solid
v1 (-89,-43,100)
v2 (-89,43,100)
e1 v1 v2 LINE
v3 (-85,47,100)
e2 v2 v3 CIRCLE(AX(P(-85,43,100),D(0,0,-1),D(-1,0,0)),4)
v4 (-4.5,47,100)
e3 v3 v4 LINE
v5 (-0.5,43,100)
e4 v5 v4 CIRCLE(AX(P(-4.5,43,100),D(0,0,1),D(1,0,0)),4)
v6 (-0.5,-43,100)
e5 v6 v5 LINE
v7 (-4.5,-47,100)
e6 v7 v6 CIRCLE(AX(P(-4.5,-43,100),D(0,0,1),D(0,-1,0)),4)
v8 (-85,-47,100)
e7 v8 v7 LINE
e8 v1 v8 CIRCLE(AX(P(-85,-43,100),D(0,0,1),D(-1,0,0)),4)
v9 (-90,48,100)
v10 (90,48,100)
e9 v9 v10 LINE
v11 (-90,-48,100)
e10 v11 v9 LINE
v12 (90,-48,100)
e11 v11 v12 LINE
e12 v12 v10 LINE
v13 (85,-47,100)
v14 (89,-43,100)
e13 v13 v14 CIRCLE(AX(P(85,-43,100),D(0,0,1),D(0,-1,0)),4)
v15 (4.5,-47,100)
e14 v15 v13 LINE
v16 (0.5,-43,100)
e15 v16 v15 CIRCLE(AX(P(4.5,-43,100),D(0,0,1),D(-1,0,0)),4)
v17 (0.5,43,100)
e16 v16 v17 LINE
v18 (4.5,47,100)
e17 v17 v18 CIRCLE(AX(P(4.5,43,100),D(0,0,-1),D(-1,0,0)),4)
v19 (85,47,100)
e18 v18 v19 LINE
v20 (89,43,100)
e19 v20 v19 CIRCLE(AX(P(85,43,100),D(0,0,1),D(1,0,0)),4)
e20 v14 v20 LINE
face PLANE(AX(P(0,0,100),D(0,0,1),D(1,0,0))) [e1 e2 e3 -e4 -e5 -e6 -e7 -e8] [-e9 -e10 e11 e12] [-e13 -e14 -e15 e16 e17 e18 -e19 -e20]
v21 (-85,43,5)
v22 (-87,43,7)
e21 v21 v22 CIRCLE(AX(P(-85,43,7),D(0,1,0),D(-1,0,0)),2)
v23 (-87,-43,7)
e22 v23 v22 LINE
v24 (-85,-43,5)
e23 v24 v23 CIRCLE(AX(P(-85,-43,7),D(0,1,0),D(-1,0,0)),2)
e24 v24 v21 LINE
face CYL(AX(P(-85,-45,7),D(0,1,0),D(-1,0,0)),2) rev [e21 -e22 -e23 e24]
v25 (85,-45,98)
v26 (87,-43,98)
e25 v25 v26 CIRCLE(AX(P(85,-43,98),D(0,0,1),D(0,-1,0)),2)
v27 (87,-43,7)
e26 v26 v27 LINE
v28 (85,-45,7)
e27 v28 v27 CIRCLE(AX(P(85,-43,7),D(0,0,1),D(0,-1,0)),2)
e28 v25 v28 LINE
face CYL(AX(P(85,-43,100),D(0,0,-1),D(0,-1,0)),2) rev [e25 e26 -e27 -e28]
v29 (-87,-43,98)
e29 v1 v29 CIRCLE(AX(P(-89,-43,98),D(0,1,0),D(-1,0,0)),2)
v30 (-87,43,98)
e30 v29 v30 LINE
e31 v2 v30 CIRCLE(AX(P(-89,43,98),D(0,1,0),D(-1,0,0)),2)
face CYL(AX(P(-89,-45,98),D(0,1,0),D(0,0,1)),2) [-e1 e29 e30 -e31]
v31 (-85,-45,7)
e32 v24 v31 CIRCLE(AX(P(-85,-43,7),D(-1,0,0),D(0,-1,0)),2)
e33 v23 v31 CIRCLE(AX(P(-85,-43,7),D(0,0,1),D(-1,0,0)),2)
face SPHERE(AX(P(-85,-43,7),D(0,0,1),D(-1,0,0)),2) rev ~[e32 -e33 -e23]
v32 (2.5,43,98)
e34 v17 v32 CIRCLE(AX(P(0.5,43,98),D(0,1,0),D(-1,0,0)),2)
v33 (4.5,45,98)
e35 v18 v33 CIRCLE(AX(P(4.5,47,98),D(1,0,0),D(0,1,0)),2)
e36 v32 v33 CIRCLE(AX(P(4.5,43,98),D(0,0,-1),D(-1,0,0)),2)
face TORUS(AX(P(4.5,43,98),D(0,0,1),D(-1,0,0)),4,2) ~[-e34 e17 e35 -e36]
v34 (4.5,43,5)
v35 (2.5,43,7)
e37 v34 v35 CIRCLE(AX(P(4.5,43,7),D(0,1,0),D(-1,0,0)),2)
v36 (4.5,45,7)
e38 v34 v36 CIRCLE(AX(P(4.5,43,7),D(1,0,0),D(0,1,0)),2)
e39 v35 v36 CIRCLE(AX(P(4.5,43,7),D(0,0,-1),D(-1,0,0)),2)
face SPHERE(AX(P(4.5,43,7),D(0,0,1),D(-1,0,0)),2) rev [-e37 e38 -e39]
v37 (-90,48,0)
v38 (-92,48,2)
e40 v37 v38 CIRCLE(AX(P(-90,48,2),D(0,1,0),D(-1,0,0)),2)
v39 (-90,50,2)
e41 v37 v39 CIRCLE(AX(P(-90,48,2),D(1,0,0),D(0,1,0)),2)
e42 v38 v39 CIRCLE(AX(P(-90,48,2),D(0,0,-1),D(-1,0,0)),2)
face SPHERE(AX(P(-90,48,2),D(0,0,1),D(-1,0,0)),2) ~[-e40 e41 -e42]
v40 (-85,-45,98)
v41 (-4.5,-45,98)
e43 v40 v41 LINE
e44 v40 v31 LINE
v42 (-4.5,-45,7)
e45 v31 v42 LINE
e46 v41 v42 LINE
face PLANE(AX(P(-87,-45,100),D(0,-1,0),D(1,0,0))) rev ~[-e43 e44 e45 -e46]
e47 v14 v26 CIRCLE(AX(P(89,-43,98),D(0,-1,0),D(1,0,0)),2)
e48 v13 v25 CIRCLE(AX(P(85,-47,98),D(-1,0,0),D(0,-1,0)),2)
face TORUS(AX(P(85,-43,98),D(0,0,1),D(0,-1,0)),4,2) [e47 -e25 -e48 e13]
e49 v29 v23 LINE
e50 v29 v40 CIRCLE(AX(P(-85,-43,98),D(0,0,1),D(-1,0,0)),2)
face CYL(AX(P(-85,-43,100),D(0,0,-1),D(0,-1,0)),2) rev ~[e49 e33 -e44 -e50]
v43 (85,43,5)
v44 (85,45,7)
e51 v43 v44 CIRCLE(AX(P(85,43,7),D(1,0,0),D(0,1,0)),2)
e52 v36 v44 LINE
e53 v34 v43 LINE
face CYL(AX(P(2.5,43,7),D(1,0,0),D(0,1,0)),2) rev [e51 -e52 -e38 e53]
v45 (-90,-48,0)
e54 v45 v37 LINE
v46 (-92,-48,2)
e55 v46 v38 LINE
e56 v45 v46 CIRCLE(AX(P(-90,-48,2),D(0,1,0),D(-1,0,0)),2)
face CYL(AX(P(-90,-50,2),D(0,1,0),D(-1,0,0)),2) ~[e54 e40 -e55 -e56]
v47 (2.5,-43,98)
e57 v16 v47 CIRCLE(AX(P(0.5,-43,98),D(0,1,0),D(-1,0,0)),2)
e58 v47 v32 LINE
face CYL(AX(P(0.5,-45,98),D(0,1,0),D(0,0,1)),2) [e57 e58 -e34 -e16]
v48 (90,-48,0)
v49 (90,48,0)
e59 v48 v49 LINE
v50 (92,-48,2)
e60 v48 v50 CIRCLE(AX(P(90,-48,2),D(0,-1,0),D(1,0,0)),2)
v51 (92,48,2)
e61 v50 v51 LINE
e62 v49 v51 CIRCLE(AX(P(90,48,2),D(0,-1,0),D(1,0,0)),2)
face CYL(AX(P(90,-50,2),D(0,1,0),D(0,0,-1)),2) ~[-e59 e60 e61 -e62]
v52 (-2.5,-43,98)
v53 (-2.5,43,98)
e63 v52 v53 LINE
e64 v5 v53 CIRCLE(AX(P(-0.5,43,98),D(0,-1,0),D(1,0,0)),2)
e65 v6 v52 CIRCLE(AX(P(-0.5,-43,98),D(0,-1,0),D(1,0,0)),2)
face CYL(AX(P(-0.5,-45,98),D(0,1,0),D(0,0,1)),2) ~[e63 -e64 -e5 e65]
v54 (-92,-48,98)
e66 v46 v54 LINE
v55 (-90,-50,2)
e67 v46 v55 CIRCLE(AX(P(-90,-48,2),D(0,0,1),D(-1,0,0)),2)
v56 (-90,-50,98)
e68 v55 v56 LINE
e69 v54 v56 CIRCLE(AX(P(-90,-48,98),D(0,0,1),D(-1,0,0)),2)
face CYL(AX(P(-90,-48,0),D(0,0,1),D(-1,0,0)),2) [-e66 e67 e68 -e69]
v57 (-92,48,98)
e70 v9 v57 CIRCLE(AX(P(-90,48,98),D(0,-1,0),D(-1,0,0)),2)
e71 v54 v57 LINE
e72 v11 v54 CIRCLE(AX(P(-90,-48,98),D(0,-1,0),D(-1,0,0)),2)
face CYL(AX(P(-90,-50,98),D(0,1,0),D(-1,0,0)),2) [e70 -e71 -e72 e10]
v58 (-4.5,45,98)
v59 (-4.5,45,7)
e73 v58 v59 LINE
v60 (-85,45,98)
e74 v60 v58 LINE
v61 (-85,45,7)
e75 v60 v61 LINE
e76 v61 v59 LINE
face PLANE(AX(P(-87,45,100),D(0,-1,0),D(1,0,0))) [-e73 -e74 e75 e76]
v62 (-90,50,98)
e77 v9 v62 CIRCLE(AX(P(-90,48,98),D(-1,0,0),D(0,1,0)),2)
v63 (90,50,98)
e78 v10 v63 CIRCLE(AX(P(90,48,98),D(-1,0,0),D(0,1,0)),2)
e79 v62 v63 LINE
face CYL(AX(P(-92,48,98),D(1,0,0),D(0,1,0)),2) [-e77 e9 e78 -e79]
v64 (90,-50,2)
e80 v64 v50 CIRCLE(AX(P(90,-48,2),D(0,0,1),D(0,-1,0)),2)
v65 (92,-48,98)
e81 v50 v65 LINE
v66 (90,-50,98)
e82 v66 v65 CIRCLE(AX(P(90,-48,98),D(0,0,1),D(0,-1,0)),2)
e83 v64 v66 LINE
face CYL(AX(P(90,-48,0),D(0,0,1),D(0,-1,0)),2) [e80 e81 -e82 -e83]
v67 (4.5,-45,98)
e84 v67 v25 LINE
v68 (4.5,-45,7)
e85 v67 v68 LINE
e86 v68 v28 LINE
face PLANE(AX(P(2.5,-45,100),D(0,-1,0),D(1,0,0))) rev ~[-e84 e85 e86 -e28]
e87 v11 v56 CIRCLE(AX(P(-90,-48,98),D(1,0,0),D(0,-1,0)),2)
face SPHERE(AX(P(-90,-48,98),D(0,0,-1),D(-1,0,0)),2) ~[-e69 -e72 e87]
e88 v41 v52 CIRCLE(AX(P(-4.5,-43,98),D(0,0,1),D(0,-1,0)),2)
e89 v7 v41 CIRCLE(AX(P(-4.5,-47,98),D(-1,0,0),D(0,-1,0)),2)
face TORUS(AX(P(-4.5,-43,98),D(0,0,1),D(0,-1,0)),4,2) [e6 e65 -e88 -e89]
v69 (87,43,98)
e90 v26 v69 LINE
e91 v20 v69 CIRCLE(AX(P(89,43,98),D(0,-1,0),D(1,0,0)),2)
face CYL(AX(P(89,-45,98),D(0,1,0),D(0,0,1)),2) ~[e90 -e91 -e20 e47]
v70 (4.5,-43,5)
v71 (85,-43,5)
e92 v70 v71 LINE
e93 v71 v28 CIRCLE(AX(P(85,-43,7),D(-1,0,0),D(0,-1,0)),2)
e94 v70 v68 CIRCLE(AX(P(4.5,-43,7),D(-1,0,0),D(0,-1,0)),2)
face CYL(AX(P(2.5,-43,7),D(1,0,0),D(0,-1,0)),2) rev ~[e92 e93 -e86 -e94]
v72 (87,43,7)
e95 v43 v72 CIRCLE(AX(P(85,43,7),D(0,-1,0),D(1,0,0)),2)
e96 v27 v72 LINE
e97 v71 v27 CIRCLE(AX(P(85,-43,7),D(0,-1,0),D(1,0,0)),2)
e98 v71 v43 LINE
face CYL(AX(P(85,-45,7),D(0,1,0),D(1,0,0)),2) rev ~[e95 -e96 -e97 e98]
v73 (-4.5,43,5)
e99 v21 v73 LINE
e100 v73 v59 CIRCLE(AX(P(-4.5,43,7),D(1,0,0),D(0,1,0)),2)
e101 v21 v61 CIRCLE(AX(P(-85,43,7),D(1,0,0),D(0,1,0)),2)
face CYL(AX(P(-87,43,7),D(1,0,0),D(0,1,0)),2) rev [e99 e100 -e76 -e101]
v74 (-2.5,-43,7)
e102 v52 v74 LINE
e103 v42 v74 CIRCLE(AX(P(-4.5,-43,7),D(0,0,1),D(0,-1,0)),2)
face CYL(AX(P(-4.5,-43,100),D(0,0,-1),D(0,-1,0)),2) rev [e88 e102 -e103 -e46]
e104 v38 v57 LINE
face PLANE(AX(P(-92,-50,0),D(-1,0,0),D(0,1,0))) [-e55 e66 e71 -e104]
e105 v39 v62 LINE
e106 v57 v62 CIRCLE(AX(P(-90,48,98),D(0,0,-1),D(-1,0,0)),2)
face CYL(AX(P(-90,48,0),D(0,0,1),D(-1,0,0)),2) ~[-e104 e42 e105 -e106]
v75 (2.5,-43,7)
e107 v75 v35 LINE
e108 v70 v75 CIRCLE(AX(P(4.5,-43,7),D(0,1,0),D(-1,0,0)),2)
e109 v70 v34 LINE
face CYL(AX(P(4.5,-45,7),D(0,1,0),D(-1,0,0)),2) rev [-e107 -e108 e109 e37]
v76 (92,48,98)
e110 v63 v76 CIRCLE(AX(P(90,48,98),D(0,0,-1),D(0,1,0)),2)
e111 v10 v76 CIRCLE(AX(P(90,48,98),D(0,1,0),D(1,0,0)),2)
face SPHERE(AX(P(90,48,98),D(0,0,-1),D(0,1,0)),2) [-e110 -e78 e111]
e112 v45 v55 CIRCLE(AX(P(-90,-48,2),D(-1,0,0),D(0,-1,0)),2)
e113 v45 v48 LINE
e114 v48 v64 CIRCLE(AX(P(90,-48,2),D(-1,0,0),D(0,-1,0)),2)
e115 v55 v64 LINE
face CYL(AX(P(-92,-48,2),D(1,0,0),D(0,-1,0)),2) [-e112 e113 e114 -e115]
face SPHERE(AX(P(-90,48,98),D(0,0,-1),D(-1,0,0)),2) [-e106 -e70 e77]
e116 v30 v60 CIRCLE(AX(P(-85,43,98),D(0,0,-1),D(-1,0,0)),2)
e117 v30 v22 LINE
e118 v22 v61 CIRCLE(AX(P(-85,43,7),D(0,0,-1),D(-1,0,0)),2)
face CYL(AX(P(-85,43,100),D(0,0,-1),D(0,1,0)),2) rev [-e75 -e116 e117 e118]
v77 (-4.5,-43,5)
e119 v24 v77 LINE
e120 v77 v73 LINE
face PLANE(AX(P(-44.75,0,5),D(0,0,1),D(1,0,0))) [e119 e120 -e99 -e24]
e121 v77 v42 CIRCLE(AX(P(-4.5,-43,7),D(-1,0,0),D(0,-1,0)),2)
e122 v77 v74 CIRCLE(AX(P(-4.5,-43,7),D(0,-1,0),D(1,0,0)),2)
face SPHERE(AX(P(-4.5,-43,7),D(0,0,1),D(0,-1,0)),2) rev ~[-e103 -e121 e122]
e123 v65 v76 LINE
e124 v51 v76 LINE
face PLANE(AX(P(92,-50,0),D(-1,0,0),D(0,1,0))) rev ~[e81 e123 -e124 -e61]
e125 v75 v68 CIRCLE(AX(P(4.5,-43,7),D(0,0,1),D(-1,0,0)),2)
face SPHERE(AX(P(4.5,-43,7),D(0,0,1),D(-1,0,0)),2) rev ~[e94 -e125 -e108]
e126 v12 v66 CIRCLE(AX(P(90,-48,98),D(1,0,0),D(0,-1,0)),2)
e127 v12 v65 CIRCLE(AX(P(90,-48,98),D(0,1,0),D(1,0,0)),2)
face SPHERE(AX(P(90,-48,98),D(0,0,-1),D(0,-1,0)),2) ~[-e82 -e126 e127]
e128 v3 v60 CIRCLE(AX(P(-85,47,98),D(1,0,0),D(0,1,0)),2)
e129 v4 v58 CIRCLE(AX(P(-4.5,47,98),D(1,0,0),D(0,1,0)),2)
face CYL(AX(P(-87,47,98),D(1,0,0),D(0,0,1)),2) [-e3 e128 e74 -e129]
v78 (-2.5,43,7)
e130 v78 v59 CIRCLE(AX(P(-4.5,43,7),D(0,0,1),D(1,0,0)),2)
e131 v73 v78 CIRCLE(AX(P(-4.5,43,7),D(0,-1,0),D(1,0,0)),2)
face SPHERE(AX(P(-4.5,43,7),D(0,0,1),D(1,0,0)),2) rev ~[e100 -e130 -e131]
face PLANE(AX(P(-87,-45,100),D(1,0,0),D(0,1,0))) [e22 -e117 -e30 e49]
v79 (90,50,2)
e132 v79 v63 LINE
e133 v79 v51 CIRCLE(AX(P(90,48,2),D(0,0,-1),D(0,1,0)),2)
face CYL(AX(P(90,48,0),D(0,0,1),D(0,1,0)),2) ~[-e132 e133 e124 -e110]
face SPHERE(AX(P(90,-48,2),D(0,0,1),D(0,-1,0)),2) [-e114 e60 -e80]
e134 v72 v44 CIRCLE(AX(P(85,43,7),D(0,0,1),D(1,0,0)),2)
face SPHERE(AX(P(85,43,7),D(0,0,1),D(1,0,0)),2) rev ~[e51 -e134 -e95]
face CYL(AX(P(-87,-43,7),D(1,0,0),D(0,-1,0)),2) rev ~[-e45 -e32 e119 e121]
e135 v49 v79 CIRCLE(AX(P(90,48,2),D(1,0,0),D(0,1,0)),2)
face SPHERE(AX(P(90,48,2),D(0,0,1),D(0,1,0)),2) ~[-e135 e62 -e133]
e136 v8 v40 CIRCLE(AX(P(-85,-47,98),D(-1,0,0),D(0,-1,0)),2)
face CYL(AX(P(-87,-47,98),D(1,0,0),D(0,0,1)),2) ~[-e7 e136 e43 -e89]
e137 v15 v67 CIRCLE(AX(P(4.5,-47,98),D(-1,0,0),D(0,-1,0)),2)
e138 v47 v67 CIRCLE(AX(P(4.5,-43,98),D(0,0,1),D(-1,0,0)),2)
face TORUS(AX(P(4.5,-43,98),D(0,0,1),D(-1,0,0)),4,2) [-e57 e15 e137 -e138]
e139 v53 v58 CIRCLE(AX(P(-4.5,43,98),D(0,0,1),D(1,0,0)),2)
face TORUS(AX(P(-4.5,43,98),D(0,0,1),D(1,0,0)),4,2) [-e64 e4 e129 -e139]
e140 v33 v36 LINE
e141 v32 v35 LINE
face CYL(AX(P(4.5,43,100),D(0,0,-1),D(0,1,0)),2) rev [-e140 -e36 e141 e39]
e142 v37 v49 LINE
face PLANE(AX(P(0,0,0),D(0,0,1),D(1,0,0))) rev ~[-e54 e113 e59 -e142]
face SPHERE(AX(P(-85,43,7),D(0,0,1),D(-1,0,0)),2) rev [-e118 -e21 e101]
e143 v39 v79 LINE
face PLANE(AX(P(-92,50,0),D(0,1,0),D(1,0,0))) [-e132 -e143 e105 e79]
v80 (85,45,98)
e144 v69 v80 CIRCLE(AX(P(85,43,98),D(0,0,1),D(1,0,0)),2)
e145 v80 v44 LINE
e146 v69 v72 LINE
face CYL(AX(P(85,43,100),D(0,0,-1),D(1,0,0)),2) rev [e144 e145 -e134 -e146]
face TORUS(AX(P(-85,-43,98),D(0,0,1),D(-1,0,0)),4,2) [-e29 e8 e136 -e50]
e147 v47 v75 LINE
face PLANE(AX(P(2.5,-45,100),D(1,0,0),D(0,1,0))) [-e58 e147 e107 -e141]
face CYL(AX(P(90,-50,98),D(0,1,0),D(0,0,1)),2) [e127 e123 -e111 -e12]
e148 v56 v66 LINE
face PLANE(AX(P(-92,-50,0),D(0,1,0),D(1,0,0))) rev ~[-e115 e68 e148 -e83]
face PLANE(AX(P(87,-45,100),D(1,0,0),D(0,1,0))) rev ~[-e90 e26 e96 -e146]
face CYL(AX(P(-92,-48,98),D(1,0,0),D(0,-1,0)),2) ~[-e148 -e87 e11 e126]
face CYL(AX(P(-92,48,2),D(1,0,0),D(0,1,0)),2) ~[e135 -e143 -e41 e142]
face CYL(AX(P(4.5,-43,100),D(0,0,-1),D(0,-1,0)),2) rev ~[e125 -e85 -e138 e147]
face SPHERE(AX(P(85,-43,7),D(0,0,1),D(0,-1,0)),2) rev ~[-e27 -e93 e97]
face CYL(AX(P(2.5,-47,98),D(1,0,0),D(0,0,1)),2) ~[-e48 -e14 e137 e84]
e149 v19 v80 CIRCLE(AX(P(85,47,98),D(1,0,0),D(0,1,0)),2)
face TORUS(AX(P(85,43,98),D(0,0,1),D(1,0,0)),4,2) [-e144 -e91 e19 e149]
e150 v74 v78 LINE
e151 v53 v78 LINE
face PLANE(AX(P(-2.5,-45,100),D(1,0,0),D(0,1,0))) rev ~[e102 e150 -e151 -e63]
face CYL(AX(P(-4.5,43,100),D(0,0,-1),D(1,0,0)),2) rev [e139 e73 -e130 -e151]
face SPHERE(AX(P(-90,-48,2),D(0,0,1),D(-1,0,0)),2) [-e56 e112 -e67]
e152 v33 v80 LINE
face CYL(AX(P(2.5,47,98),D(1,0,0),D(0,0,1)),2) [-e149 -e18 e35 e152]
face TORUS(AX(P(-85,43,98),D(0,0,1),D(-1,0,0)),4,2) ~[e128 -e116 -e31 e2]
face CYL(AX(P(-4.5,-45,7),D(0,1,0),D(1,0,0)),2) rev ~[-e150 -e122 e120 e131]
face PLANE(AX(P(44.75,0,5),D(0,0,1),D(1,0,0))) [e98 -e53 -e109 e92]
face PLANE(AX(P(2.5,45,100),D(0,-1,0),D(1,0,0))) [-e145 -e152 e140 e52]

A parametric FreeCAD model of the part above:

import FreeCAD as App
import Part
import Sketcher

V = App.Vector


def add_polygon(sketch, points):
    """Adds a closed chain of lines whose ends are joined by coincident constraints."""
    first, n = sketch.GeometryCount, len(points)
    for a, b in zip(points, points[1:] + points[:1]):
        sketch.addGeometry(Part.LineSegment(App.Vector(*a, 0), App.Vector(*b, 0)), False)
    for i in range(n):
        sketch.addConstraint(Sketcher.Constraint("Coincident", first + i, 2, first + (i + 1) % n, 1))

doc = App.newDocument("Part")
body = doc.addObject("PartDesign::Body", "Body")

# Sketch on XY plane
sketch1 = body.newObject("Sketcher::SketchObject", "Sketch")
sketch1.AttachmentSupport = (doc.getObject("XY_Plane"), [""])
sketch1.MapMode = "FlatFace"
add_polygon(sketch1, [(-92, 50), (-92, -50), (92, -50), (92, 50)])  # lines 0-3
sketch1.addConstraint([
    Sketcher.Constraint("Vertical", 0),
    Sketcher.Constraint("Horizontal", 1),
    Sketcher.Constraint("Vertical", 2),
    Sketcher.Constraint("Horizontal", 3),
    Sketcher.Constraint("Symmetric", 0, 2, 2, 2, -1, 1),
    Sketcher.Constraint("DistanceX", 1, 1, 1, 2, 184.0),
    Sketcher.Constraint("DistanceY", 0, 2, 0, 1, 100.0),
])
pad1 = body.newObject("PartDesign::Pad", "Pad")
pad1.Profile = sketch1
pad1.Length = 100

# Sketch on XY plane
sketch2 = body.newObject("Sketcher::SketchObject", "Sketch001")
sketch2.AttachmentSupport = (doc.getObject("XY_Plane"), [""])
sketch2.MapMode = "FlatFace"
sketch2.AttachmentOffset = App.Placement(V(0, 0, 100), App.Rotation())
add_polygon(sketch2, [(-87, 45), (-87, -45), (-2.5, -45), (-2.5, 45)])  # lines 0-3
add_polygon(sketch2, [(2.5, 45), (2.5, -45), (87, -45), (87, 45)])  # lines 4-7
sketch2.addConstraint([
    Sketcher.Constraint("Vertical", 0),
    Sketcher.Constraint("Horizontal", 1),
    Sketcher.Constraint("Vertical", 2),
    Sketcher.Constraint("Horizontal", 3),
    Sketcher.Constraint("Vertical", 4),
    Sketcher.Constraint("Horizontal", 5),
    Sketcher.Constraint("Vertical", 6),
    Sketcher.Constraint("Horizontal", 7),
    Sketcher.Constraint("Symmetric", 2, 2, 4, 2, -1, 1),
    Sketcher.Constraint("Symmetric", 0, 2, 6, 2, -1, 1),
    Sketcher.Constraint("Horizontal", 1, 2, 4, 2),
    Sketcher.Constraint("DistanceY", 0, 2, 0, 1, 90.0),
    Sketcher.Constraint("DistanceX", 1, 1, 1, 2, 84.5),
    Sketcher.Constraint("DistanceX", 0, 2, -1, 1, 87.0),
])
pocket1 = body.newObject("PartDesign::Pocket", "Pocket")
pocket1.Profile = sketch2
pocket1.Length = 95
doc.recompute()

fillet = body.newObject("PartDesign::Fillet", "Fillet")
fillet.Base = (pocket1, ["Edge1"])
fillet.UseAllEdges = True
fillet.Radius = 2

doc.recompute()
